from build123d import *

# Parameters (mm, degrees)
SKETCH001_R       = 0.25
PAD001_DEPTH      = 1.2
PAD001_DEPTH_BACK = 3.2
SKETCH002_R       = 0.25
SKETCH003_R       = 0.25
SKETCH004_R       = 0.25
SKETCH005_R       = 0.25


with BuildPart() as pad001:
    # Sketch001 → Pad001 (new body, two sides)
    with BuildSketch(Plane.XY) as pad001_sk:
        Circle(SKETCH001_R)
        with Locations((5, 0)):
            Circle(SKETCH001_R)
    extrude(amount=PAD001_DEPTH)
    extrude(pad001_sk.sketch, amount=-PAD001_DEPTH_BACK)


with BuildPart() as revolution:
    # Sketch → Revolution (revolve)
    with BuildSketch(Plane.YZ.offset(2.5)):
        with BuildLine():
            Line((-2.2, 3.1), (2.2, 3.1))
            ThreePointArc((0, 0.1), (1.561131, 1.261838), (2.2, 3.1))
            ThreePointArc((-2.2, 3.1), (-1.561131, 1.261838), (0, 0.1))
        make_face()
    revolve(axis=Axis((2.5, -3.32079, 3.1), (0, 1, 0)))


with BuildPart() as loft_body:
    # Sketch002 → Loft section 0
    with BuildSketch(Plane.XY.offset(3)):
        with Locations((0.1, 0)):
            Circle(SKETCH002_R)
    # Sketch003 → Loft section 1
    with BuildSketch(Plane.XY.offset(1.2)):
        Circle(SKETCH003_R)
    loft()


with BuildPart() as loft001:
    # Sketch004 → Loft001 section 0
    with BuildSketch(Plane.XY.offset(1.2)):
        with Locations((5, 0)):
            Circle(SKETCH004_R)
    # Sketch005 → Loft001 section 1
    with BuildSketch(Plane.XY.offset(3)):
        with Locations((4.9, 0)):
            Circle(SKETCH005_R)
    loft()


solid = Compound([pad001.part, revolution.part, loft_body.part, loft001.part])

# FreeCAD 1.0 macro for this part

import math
import FreeCAD as App
import Part
import Sketcher

V = App.Vector
Q = App.Units.Quantity

doc = App.newDocument("Part")
body = doc.addObject("PartDesign::Body", "Body")
body.AllowCompound = True

sketch1 = doc.addObject("Sketcher::SketchObject", "Sketch")
body.addObject(sketch1)
sketch1.AttachmentSupport = (doc.XY_Plane, [""])
sketch1.MapMode = "FlatFace"
sketch1.addGeometry([
    Part.Circle(V(0, 0, 0), V(0, 0, 1), 0.25),
    Part.Circle(V(5, 0, 0), V(0, 0, 1), 0.25),
], False)
sketch1.addConstraint([
    Sketcher.Constraint("Coincident", 0, 3, -1, 1),
    Sketcher.Constraint("Equal", 0, 1),
    Sketcher.Constraint("PointOnObject", 1, 3, -1),
    Sketcher.Constraint("Diameter", 0, Q("0.5 mm")),
    Sketcher.Constraint("DistanceX", -1, 1, 1, 3, Q("5 mm")),
])
pad1 = doc.addObject("PartDesign::Pad", "Pad")
body.addObject(pad1)
pad1.Profile = sketch1
pad1.Type = "TwoLengths"
pad1.Length = 1.2
pad1.Length2 = 3.2
body2 = doc.addObject("PartDesign::Body", "Body001")

sketch2 = doc.addObject("Sketcher::SketchObject", "Sketch001")
body2.addObject(sketch2)
sketch2.AttachmentSupport = (doc.getObject("YZ_Plane001"), [""])
sketch2.MapMode = "FlatFace"
sketch2.AttachmentOffset = App.Placement(V(0, 0, 2.5), App.Rotation())
sketch2.addGeometry([
    Part.LineSegment(V(2.2, 3.1, 0), V(-2.2, 3.1, 0)),
    Part.ArcOfCircle(Part.Circle(V(1.1, 3.2, 0), V(0, 0, 1), 3.3), math.radians(-178), math.radians(-110)),
    Part.ArcOfCircle(Part.Circle(V(-1.1, 3.2, 0), V(0, 0, 1), 3.3), math.radians(-70), math.radians(-2)),
], False)
sketch2.addGeometry(Part.LineSegment(V(-2.2, 3.1, 0), V(2.2, 3.1, 0)), True)
sketch2.addConstraint([
    Sketcher.Constraint("Coincident", 0, 2, 1, 1),
    Sketcher.Constraint("Coincident", 1, 2, 2, 1),
    Sketcher.Constraint("Coincident", 2, 2, 0, 1),
    Sketcher.Constraint("Horizontal", 0),
    Sketcher.Constraint("Horizontal", 3),
    Sketcher.Constraint("Coincident", 3, 1, 0, 2),
    Sketcher.Constraint("Equal", 1, 2),
    Sketcher.Constraint("Symmetric", 1, 3, 2, 3, -2),
    Sketcher.Constraint("Equal", 0, 3),
    Sketcher.Constraint("DistanceX", 0, 2, 0, 1, Q("4.4 mm")),
    Sketcher.Constraint("DistanceY", 1, 2, 0, 2, Q("3 mm")),
    Sketcher.Constraint("DistanceY", -1, 1, 0, 2, Q("3.1 mm")),
    Sketcher.Constraint("DistanceY", -1, 1, 1, 3, Q("3.22 mm")),
])
revolution = doc.addObject("PartDesign::Revolution", "Revolution")
body2.addObject(revolution)
revolution.Profile = sketch2
revolution.ReferenceAxis = (sketch2, ["Axis0"])
revolution.Angle = 360
body3 = doc.addObject("PartDesign::Body", "Body002")

sketch3 = doc.addObject("Sketcher::SketchObject", "Sketch002")
body3.addObject(sketch3)
sketch3.AttachmentSupport = (doc.getObject("XY_Plane002"), [""])
sketch3.MapMode = "FlatFace"
sketch3.AttachmentOffset = App.Placement(V(0, 0, 3), App.Rotation())
sketch3.addGeometry(Part.Circle(V(0.1, 0, 0), V(0, 0, 1), 0.25), False)
sketch3.addConstraint([
    Sketcher.Constraint("PointOnObject", 0, 3, -1),
    Sketcher.Constraint("Diameter", 0, Q("0.5 mm")),
    Sketcher.Constraint("DistanceX", -1, 1, 0, 3, Q("0.1 mm")),
])

sketch4 = doc.addObject("Sketcher::SketchObject", "Sketch003")
body3.addObject(sketch4)
sketch4.AttachmentSupport = (doc.getObject("XY_Plane002"), [""])
sketch4.MapMode = "FlatFace"
sketch4.AttachmentOffset = App.Placement(V(0, 0, 1.2), App.Rotation())
sketch4.addGeometry(Part.Circle(V(0, 0, 0), V(0, 0, 1), 0.25), False)
sketch4.addConstraint([
    Sketcher.Constraint("Coincident", 0, 3, -1, 1),
    Sketcher.Constraint("Diameter", 0, Q("0.5 mm")),
])

additiveloft = doc.addObject("PartDesign::AdditiveLoft", "AdditiveLoft")
body3.addObject(additiveloft)
additiveloft.Profile = sketch3
additiveloft.Sections = [sketch4]
body4 = doc.addObject("PartDesign::Body", "Body003")

sketch5 = doc.addObject("Sketcher::SketchObject", "Sketch004")
body4.addObject(sketch5)
sketch5.AttachmentSupport = (doc.getObject("XY_Plane003"), [""])
sketch5.MapMode = "FlatFace"
sketch5.AttachmentOffset = App.Placement(V(0, 0, 1.2), App.Rotation())
sketch5.addGeometry(Part.Circle(V(5, 0, 0), V(0, 0, 1), 0.25), False)
sketch5.addConstraint([
    Sketcher.Constraint("PointOnObject", 0, 3, -1),
    Sketcher.Constraint("Diameter", 0, Q("0.5 mm")),
    Sketcher.Constraint("DistanceX", -1, 1, 0, 3, Q("5 mm")),
])

sketch6 = doc.addObject("Sketcher::SketchObject", "Sketch005")
body4.addObject(sketch6)
sketch6.AttachmentSupport = (doc.getObject("XY_Plane003"), [""])
sketch6.MapMode = "FlatFace"
sketch6.AttachmentOffset = App.Placement(V(0, 0, 3), App.Rotation())
sketch6.addGeometry(Part.Circle(V(4.9, 0, 0), V(0, 0, 1), 0.25), False)
sketch6.addConstraint([
    Sketcher.Constraint("PointOnObject", 0, 3, -1),
    Sketcher.Constraint("Diameter", 0, Q("0.5 mm")),
    Sketcher.Constraint("DistanceX", -1, 1, 0, 3, Q("4.9 mm")),
])

additiveloft2 = doc.addObject("PartDesign::AdditiveLoft", "AdditiveLoft001")
body4.addObject(additiveloft2)
additiveloft2.Profile = sketch5
additiveloft2.Sections = [sketch6]

doc.recompute()
